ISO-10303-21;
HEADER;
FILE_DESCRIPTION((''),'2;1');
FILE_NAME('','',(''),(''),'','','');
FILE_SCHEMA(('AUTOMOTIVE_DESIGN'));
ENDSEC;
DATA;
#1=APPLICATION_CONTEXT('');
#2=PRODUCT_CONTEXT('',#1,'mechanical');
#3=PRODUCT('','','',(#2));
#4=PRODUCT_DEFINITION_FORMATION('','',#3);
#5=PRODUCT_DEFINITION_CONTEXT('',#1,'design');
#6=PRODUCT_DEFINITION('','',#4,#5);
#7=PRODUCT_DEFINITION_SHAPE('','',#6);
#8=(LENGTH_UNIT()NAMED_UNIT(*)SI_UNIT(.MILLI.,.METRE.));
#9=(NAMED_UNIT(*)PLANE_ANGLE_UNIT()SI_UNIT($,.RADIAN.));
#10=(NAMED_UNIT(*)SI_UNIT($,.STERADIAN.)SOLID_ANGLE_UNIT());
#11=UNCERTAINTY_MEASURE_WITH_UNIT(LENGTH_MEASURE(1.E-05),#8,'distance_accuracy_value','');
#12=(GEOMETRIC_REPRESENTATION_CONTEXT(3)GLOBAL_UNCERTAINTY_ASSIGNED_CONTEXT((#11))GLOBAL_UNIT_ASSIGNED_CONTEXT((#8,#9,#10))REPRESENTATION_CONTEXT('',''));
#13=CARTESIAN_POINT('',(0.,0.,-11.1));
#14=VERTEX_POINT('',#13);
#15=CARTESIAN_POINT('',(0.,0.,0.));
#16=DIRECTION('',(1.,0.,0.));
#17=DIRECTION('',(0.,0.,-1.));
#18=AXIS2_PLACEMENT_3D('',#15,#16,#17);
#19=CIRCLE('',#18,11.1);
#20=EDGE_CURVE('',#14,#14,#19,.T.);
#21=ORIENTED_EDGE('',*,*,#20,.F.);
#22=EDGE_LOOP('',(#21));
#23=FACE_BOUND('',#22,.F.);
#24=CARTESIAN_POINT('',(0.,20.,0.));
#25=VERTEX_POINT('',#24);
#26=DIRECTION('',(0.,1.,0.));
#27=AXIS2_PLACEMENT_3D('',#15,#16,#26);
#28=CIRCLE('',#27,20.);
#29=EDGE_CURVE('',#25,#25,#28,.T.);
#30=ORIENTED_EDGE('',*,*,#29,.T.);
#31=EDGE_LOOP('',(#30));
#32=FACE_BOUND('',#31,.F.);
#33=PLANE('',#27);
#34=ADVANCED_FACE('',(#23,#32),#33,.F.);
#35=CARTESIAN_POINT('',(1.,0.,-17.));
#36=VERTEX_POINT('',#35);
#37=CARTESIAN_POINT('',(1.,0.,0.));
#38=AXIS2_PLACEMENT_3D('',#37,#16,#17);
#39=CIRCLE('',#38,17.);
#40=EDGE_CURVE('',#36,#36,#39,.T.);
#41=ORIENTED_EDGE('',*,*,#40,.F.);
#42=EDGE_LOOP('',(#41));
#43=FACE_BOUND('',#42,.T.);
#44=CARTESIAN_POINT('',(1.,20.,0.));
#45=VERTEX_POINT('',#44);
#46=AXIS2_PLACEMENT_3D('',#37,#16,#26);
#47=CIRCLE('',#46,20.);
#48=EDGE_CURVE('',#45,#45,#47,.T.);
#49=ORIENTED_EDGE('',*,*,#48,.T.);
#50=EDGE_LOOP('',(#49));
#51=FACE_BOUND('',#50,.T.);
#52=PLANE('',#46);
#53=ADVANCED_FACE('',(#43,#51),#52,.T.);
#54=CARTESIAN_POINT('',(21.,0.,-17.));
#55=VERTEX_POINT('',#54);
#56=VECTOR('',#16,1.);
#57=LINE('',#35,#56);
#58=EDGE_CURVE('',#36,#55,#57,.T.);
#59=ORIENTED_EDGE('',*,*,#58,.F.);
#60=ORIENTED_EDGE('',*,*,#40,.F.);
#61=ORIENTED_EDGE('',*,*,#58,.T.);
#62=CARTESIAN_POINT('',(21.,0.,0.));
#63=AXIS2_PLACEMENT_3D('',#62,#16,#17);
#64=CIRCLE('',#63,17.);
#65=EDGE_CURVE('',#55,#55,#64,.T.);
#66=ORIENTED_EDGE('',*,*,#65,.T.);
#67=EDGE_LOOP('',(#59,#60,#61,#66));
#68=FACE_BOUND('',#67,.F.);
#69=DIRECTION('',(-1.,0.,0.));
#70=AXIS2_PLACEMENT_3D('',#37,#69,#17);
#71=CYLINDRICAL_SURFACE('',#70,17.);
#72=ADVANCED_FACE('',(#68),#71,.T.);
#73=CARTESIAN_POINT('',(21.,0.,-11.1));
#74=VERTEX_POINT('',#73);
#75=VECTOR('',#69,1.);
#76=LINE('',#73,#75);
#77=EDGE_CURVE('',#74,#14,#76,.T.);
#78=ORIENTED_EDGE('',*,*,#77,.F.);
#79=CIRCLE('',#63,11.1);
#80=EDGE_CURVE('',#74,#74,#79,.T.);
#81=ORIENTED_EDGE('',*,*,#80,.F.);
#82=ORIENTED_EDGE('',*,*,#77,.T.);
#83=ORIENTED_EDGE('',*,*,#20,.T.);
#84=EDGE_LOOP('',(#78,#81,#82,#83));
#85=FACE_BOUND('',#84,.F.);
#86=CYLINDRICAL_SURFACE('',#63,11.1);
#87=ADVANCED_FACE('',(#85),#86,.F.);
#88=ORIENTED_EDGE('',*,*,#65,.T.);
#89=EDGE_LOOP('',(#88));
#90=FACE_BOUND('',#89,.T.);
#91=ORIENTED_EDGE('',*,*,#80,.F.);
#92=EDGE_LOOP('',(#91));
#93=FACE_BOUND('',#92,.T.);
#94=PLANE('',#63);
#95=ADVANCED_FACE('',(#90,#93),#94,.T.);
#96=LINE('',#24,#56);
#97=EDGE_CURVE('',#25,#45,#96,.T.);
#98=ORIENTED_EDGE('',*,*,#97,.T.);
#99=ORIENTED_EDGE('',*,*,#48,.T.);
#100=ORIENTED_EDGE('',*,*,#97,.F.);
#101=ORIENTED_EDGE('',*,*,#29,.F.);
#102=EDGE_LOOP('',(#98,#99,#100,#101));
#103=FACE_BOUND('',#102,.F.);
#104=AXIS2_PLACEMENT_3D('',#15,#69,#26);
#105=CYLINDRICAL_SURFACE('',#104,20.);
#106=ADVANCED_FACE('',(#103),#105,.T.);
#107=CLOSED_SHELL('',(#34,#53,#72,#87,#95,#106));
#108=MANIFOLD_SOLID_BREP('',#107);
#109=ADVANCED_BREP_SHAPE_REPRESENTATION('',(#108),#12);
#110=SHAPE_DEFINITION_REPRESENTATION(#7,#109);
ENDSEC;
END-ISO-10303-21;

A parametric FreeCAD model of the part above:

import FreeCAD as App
import Part
import Sketcher
Q = App.Units.Quantity

doc = App.newDocument("Part")
body = doc.addObject("PartDesign::Body", "Body")

# Sketch on YZ plane
sketch1 = doc.addObject("Sketcher::SketchObject", "Sketch")
body.addObject(sketch1)
sketch1.AttachmentSupport = (doc.YZ_Plane, [""])
sketch1.MapMode = "FlatFace"
sketch1.addGeometry(Part.Circle(App.Vector(0, 0, 0), App.Vector(0, 0, 1), 20), False)
sketch1.addConstraint([
    Sketcher.Constraint("Coincident", 0, 3, -1, 1),
    Sketcher.Constraint("Diameter", 0, Q("40 mm")),
])
pad1 = doc.addObject("PartDesign::Pad", "Pad")
body.addObject(pad1)
pad1.Profile = sketch1
pad1.Length = 1

# Sketch on YZ plane
sketch2 = doc.addObject("Sketcher::SketchObject", "Sketch001")
body.addObject(sketch2)
sketch2.AttachmentSupport = (doc.YZ_Plane, [""])
sketch2.MapMode = "FlatFace"
sketch2.AttachmentOffset = App.Placement(App.Vector(0, 0, 1), App.Rotation())
sketch2.addGeometry(Part.Circle(App.Vector(0, 0, 0), App.Vector(0, 0, 1), 17), False)
sketch2.addConstraint([
    Sketcher.Constraint("Coincident", 0, 3, -1, 1),
    Sketcher.Constraint("Diameter", 0, Q("34 mm")),
])
pad2 = doc.addObject("PartDesign::Pad", "Pad001")
body.addObject(pad2)
pad2.Profile = sketch2
pad2.Length = 20

# Sketch on YZ plane
sketch3 = doc.addObject("Sketcher::SketchObject", "Sketch002")
body.addObject(sketch3)
sketch3.AttachmentSupport = (doc.YZ_Plane, [""])
sketch3.MapMode = "FlatFace"
sketch3.addGeometry(Part.Circle(App.Vector(0, 0, 0), App.Vector(0, 0, 1), 5), False)
sketch3.addConstraint([
    Sketcher.Constraint("Coincident", 0, 3, -1, 1),
    Sketcher.Constraint("Diameter", 0, Q("10 mm")),
])
pad3 = doc.addObject("PartDesign::Pad", "Pad002")
body.addObject(pad3)
pad3.Profile = sketch3
pad3.Length = 10
pad3.Reversed = True

# Sketch on YZ plane
sketch4 = doc.addObject("Sketcher::SketchObject", "Sketch003")
body.addObject(sketch4)
sketch4.AttachmentSupport = (doc.YZ_Plane, [""])
sketch4.MapMode = "FlatFace"
sketch4.AttachmentOffset = App.Placement(App.Vector(0, 0, 21), App.Rotation())
sketch4.addGeometry(Part.Circle(App.Vector(0, 0, 0), App.Vector(0, 0, 1), 11), False)
sketch4.addConstraint([
    Sketcher.Constraint("Coincident", 0, 3, -1, 1),
    Sketcher.Constraint("Diameter", 0, Q("22.2 mm")),
])
pocket1 = doc.addObject("PartDesign::Pocket", "Pocket")
body.addObject(pocket1)
pocket1.Profile = sketch4
pocket1.Type = "ThroughAll"

doc.recompute()
